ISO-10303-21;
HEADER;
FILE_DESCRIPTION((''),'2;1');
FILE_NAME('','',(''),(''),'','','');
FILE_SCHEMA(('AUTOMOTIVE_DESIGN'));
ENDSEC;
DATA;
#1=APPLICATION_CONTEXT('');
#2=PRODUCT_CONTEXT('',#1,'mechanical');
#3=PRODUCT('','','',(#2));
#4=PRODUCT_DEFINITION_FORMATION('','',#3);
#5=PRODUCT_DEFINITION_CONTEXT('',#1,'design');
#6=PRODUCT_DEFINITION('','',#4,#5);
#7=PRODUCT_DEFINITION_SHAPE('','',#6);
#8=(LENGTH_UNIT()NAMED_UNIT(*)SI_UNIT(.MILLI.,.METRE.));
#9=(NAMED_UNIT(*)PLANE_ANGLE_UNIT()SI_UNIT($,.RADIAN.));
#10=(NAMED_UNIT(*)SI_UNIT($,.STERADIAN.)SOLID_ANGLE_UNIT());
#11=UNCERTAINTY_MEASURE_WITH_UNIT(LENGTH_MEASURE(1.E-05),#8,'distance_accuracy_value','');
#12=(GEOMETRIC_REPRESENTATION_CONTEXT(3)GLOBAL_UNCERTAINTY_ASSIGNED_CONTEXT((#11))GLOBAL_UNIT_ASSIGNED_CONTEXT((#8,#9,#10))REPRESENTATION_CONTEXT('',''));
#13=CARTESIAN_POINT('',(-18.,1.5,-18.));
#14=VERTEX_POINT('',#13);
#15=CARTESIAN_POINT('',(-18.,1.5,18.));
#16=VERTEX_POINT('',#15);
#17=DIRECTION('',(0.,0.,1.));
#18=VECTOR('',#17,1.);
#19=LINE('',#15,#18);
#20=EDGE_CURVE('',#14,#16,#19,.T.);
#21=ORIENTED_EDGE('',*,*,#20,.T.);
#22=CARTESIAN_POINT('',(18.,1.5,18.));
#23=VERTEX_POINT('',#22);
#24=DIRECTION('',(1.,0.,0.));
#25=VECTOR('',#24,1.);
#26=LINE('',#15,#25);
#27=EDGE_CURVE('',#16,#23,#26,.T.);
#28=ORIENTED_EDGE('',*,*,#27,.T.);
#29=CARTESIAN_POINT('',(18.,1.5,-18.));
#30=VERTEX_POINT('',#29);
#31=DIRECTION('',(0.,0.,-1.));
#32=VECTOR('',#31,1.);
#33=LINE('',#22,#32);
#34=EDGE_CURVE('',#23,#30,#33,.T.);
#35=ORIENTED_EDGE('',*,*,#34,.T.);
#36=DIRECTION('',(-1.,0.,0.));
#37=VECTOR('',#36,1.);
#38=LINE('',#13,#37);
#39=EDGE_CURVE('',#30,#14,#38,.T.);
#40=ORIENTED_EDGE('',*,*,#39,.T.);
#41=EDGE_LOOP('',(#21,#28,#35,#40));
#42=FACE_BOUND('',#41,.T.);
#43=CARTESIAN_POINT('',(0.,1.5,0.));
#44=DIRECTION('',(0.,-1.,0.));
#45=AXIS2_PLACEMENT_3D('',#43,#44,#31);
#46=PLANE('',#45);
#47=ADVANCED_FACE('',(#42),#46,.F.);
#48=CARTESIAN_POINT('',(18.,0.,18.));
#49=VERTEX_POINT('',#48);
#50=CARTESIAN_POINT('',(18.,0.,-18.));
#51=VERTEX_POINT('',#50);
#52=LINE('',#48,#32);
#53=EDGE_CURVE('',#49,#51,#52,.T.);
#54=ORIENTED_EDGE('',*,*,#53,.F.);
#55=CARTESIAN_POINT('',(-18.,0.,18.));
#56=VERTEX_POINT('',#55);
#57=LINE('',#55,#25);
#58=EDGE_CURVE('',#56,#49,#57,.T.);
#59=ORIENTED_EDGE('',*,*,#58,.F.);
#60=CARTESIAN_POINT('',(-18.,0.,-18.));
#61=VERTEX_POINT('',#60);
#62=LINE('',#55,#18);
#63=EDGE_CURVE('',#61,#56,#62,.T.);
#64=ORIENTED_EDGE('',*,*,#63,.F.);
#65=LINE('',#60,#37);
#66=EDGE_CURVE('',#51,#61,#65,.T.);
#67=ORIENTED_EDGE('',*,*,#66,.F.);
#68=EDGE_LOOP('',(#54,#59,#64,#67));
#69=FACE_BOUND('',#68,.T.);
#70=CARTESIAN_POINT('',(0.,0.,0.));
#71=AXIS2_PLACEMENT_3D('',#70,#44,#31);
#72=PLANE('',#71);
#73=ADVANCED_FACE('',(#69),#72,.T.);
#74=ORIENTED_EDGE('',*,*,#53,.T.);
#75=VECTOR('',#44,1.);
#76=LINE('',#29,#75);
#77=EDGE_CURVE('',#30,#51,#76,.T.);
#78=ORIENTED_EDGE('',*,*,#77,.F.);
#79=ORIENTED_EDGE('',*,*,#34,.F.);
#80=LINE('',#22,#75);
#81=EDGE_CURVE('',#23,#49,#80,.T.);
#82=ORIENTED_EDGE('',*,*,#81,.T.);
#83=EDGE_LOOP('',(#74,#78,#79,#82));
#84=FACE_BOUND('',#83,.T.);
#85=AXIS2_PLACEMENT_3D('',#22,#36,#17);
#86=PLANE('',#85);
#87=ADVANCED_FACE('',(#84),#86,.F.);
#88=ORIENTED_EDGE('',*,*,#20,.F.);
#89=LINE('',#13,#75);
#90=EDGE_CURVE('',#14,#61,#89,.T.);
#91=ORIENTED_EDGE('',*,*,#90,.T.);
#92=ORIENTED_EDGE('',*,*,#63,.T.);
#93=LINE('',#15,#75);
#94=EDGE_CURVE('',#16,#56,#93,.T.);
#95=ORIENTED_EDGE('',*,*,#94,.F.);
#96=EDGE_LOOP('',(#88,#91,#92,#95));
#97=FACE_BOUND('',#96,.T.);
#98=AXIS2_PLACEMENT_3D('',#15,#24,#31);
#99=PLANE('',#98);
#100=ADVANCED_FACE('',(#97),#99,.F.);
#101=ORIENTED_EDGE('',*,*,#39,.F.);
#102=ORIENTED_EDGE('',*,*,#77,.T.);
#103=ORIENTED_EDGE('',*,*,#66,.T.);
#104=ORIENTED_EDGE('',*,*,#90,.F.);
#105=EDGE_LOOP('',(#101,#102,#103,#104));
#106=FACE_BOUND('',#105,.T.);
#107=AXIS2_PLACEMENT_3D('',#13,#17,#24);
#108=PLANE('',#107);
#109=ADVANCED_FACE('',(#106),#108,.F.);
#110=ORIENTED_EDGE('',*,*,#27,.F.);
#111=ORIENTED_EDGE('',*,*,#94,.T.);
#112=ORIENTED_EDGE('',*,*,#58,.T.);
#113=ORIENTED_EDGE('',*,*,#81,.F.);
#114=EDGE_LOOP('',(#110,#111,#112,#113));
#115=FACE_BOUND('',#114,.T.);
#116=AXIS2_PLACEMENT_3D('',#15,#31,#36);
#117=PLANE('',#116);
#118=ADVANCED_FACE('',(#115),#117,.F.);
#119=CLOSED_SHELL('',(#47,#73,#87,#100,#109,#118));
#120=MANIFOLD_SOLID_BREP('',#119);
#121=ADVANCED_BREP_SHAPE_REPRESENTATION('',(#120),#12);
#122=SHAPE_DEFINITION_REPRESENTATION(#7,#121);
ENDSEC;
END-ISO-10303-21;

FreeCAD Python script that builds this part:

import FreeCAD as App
import Part
import Sketcher
Q = App.Units.Quantity

doc = App.newDocument("Part")
body = doc.addObject("PartDesign::Body", "Body")

sketch1 = doc.addObject("Sketcher::SketchObject", "Sketch")
body.addObject(sketch1)
sketch1.AttachmentSupport = (doc.XZ_Plane, [""])
sketch1.MapMode = "FlatFace"
sketch1.addGeometry(Part.LineSegment(App.Vector(-18, -18, 0), App.Vector(-18, 18, 0)), False)
sketch1.addGeometry(Part.LineSegment(App.Vector(-18, 18, 0), App.Vector(18, 18, 0)), False)
sketch1.addGeometry(Part.LineSegment(App.Vector(18, 18, 0), App.Vector(18, -18, 0)), False)
sketch1.addGeometry(Part.LineSegment(App.Vector(18, -18, 0), App.Vector(-18, -18, 0)), False)
sketch1.addConstraint(Sketcher.Constraint("Coincident", 0, 2, 1, 1))
sketch1.addConstraint(Sketcher.Constraint("Coincident", 1, 2, 2, 1))
sketch1.addConstraint(Sketcher.Constraint("Coincident", 2, 2, 3, 1))
sketch1.addConstraint(Sketcher.Constraint("Coincident", 3, 2, 0, 1))
sketch1.addConstraint(Sketcher.Constraint("Vertical", 0))
sketch1.addConstraint(Sketcher.Constraint("Horizontal", 1))
sketch1.addConstraint(Sketcher.Constraint("Vertical", 2))
sketch1.addConstraint(Sketcher.Constraint("Horizontal", 3))
sketch1.addConstraint(Sketcher.Constraint("Symmetric", 0, 2, 2, 2, -1, 1))
sketch1.addConstraint(Sketcher.Constraint("Equal", 3, 0))
sketch1.addConstraint(Sketcher.Constraint("DistanceX", 1, 1, 1, 2, Q("36 mm")))
pad1 = doc.addObject("PartDesign::Pad", "Pad")
body.addObject(pad1)
pad1.Profile = sketch1
pad1.Length = 1.5
pad1.Reversed = True

doc.recompute()
